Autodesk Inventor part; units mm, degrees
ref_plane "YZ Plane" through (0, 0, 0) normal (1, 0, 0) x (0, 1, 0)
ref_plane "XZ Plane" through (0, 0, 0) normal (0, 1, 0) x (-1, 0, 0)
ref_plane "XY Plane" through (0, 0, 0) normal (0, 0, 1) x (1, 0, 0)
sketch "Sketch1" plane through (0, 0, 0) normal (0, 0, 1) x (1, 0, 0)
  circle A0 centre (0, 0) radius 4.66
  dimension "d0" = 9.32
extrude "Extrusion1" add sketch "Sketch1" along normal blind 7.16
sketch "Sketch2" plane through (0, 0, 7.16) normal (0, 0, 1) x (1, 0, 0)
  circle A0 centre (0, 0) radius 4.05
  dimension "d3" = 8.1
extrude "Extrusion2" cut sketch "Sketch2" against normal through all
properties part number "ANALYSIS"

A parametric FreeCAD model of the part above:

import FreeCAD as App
import Part
import Sketcher

doc = App.newDocument("Part")
body = doc.addObject("PartDesign::Body", "Body")

sketch1 = body.newObject("Sketcher::SketchObject", "Sketch")
sketch1.AttachmentSupport = (doc.getObject("XY_Plane"), [""])
sketch1.MapMode = "FlatFace"
sketch1.addGeometry(Part.Circle(App.Vector(0, 0, 0), App.Vector(0, 0, 1), 4.7), False)
sketch1.addConstraint([
    Sketcher.Constraint("Coincident", 0, 3, -1, 1),
    Sketcher.Constraint("Diameter", 0, 9.32),
])
pad1 = body.newObject("PartDesign::Pad", "Pad")
pad1.Profile = sketch1
pad1.Length = 7.16

sketch2 = body.newObject("Sketcher::SketchObject", "Sketch001")
sketch2.AttachmentSupport = (doc.getObject("XY_Plane"), [""])
sketch2.MapMode = "FlatFace"
sketch2.AttachmentOffset = App.Placement(App.Vector(0, 0, 7.16), App.Rotation())
sketch2.addGeometry(Part.Circle(App.Vector(0, 0, 0), App.Vector(0, 0, 1), 4), False)
sketch2.addConstraint([
    Sketcher.Constraint("Coincident", 0, 3, -1, 1),
    Sketcher.Constraint("Diameter", 0, 8.1),
])
pocket1 = body.newObject("PartDesign::Pocket", "Pocket")
pocket1.Profile = sketch2
pocket1.Type = "ThroughAll"

doc.recompute()
